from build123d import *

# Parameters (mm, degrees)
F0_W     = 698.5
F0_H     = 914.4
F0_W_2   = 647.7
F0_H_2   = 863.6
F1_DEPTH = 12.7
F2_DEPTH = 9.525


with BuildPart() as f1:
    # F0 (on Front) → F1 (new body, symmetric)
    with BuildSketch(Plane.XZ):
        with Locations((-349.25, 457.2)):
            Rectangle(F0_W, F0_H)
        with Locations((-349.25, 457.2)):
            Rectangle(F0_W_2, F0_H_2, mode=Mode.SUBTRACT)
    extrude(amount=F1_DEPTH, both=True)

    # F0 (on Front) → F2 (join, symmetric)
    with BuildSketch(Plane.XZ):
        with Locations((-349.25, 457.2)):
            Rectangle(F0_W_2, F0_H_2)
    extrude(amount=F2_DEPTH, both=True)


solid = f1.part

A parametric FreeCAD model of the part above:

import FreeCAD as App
import Part
import Sketcher
from FreeCAD import Vector
Q = App.Units.Quantity

doc = App.newDocument("Part")
body = doc.addObject("PartDesign::Body", "Body")

sketch1 = body.newObject("Sketcher::SketchObject", "Sketch")
sketch1.AttachmentSupport = (doc.getObject("XZ_Plane"), [""])
sketch1.MapMode = "FlatFace"
sketch1.addGeometry([
    Part.LineSegment(Vector(-698, 914, 0), Vector(-698, 0, 0)),
    Part.LineSegment(Vector(-698, 0, 0), Vector(0, 0, 0)),
    Part.LineSegment(Vector(0, 0, 0), Vector(0, 914, 0)),
    Part.LineSegment(Vector(0, 914, 0), Vector(-698, 914, 0)),
    Part.LineSegment(Vector(-25, 25, 0), Vector(-673, 25, 0)),
    Part.LineSegment(Vector(-673, 25, 0), Vector(-673, 889, 0)),
    Part.LineSegment(Vector(-673, 889, 0), Vector(-25, 889, 0)),
    Part.LineSegment(Vector(-25, 889, 0), Vector(-25, 25, 0)),
], False)
sketch1.addConstraint([
    Sketcher.Constraint("Coincident", 0, 2, 1, 1),
    Sketcher.Constraint("Coincident", 1, 2, 2, 1),
    Sketcher.Constraint("Coincident", 2, 2, 3, 1),
    Sketcher.Constraint("Coincident", 3, 2, 0, 1),
    Sketcher.Constraint("Coincident", 4, 2, 5, 1),
    Sketcher.Constraint("Coincident", 5, 2, 6, 1),
    Sketcher.Constraint("Coincident", 6, 2, 7, 1),
    Sketcher.Constraint("Coincident", 7, 2, 4, 1),
    Sketcher.Constraint("Vertical", 0),
    Sketcher.Constraint("Horizontal", 1),
    Sketcher.Constraint("Vertical", 2),
    Sketcher.Constraint("Horizontal", 3),
    Sketcher.Constraint("Horizontal", 4),
    Sketcher.Constraint("Vertical", 5),
    Sketcher.Constraint("Horizontal", 6),
    Sketcher.Constraint("Vertical", 7),
    Sketcher.Constraint("Coincident", 1, 2, -1, 1),
    Sketcher.Constraint("DistanceY", 0, 2, 0, 1, Q("36 in")),
    Sketcher.Constraint("DistanceY", 5, 1, 5, 2, Q("34 in")),
    Sketcher.Constraint("DistanceX", 1, 1, 1, 2, Q("27.5 in")),
    Sketcher.Constraint("DistanceX", 4, 2, 4, 1, Q("25.5 in")),
    Sketcher.Constraint("DistanceY", -1, 1, 4, 2, Q("1 in")),
    Sketcher.Constraint("DistanceX", 6, 2, -1, 1, Q("1 in")),
])
pad1 = body.newObject("PartDesign::Pad", "Pad")
pad1.Profile = sketch1
pad1.Length = Q("1 in")
pad1.Midplane = True

sketch2 = body.newObject("Sketcher::SketchObject", "Sketch001")
sketch2.AttachmentSupport = (doc.getObject("XZ_Plane"), [""])
sketch2.MapMode = "FlatFace"
sketch2.addGeometry([
    Part.LineSegment(Vector(-673, 889, 0), Vector(-673, 25, 0)),
    Part.LineSegment(Vector(-673, 25, 0), Vector(-25, 25, 0)),
    Part.LineSegment(Vector(-25, 25, 0), Vector(-25, 889, 0)),
    Part.LineSegment(Vector(-25, 889, 0), Vector(-673, 889, 0)),
], False)
sketch2.addConstraint([
    Sketcher.Constraint("Coincident", 0, 2, 1, 1),
    Sketcher.Constraint("Coincident", 1, 2, 2, 1),
    Sketcher.Constraint("Coincident", 2, 2, 3, 1),
    Sketcher.Constraint("Coincident", 3, 2, 0, 1),
    Sketcher.Constraint("Vertical", 0),
    Sketcher.Constraint("Horizontal", 1),
    Sketcher.Constraint("Vertical", 2),
    Sketcher.Constraint("Horizontal", 3),
    Sketcher.Constraint("DistanceY", 0, 2, 0, 1, Q("34 in")),
    Sketcher.Constraint("DistanceX", 1, 1, 1, 2, Q("25.5 in")),
    Sketcher.Constraint("DistanceY", -1, 1, 0, 2, Q("1 in")),
    Sketcher.Constraint("DistanceX", 1, 2, -1, 1, Q("1 in")),
])
pad2 = body.newObject("PartDesign::Pad", "Pad001")
pad2.Profile = sketch2
pad2.Length = Q("0.75 in")
pad2.Midplane = True

doc.recompute()
